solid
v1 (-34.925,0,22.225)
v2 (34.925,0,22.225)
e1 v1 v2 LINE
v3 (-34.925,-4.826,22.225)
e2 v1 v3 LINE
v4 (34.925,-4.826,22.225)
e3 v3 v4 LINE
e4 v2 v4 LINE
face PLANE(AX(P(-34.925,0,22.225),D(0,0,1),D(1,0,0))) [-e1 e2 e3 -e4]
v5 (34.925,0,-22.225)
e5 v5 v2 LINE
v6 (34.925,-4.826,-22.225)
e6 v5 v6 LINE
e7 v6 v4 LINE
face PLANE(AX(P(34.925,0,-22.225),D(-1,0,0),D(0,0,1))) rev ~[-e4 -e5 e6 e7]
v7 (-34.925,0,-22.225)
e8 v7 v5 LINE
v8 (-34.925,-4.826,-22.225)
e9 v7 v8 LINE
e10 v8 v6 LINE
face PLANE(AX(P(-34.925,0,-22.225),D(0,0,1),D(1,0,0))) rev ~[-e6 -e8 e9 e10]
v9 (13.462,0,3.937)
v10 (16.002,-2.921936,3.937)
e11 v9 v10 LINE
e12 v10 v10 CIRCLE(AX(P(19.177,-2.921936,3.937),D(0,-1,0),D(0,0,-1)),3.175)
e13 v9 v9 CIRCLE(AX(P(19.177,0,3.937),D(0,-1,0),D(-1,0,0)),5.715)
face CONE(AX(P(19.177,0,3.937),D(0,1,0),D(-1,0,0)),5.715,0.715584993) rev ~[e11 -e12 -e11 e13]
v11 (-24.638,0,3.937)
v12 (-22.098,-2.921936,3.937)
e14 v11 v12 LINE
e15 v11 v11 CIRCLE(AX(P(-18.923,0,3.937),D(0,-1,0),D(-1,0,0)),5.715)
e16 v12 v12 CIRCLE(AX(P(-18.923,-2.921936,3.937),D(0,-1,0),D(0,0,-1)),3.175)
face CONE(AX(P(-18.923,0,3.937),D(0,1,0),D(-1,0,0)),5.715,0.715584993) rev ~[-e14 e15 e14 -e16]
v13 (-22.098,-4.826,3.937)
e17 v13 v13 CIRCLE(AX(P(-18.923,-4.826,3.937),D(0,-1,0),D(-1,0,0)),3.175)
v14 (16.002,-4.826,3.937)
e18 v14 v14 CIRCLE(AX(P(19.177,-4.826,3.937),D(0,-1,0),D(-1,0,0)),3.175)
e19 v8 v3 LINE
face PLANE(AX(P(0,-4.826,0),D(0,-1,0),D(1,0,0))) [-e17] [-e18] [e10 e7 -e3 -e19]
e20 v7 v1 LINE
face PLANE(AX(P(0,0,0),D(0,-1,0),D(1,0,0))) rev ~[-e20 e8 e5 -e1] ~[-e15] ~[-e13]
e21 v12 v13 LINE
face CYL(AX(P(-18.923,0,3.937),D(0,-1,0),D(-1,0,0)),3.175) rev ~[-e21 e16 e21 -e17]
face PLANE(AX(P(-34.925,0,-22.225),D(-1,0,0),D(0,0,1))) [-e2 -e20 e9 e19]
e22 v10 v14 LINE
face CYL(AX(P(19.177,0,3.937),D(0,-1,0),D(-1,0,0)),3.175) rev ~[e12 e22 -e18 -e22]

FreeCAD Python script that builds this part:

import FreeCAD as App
import Part
import Sketcher
from FreeCAD import Vector
Q = App.Units.Quantity


def add_polygon(sketch, points):
    """Adds a closed chain of lines whose ends are joined by coincident constraints."""
    first, n = sketch.GeometryCount, len(points)
    for a, b in zip(points, points[1:] + points[:1]):
        sketch.addGeometry(Part.LineSegment(App.Vector(*a, 0), App.Vector(*b, 0)), False)
    for i in range(n):
        sketch.addConstraint(Sketcher.Constraint("Coincident", first + i, 2, first + (i + 1) % n, 1))

doc = App.newDocument("Part")
body = doc.addObject("PartDesign::Body", "Body")

# Sketch on XZ plane
sketch1 = body.newObject("Sketcher::SketchObject", "Sketch")
sketch1.AttachmentSupport = (doc.getObject("XZ_Plane"), [""])
sketch1.MapMode = "FlatFace"
add_polygon(sketch1, [(-35, 22), (-35, -22), (35, -22), (35, 22)])  # lines 0-3
sketch1.addConstraint([
    Sketcher.Constraint("Vertical", 0),
    Sketcher.Constraint("Horizontal", 1),
    Sketcher.Constraint("Vertical", 2),
    Sketcher.Constraint("Horizontal", 3),
    Sketcher.Constraint("Symmetric", 0, 2, 2, 2, -1, 1),
    Sketcher.Constraint("DistanceX", 1, 1, 1, 2, Q("2.75 in")),
    Sketcher.Constraint("DistanceY", 0, 2, 0, 1, Q("1.75 in")),
])
pad1 = body.newObject("PartDesign::Pad", "Pad")
pad1.Profile = sketch1
pad1.Length = Q("0.19 in")

# Sketch on XZ plane
sketch2 = body.newObject("Sketcher::SketchObject", "Sketch001")
sketch2.AttachmentSupport = (doc.getObject("XZ_Plane"), [""])
sketch2.MapMode = "FlatFace"
sketch2.addGeometry([
    Part.Circle(Vector(-18.9, 3.9, 0), Vector(0, 0, 1), 3.2),
    Part.Circle(Vector(19.2, 3.9, 0), Vector(0, 0, 1), 3.2),
], False)
sketch2.addConstraint([
    Sketcher.Constraint("Equal", 0, 1),
    Sketcher.Constraint("Horizontal", 0, 3, 1, 3),
    Sketcher.Constraint("Diameter", 0, Q("0.25 in")),
    Sketcher.Constraint("DistanceX", 0, 3, 1, 3, Q("1.5 in")),
    Sketcher.Constraint("DistanceX", 0, 3, -1, 1, Q("0.745 in")),
    Sketcher.Constraint("DistanceY", -1, 1, 0, 3, Q("0.155 in")),
])
doc.recompute()
hole = body.newObject("PartDesign::Hole", "Hole")
hole.Profile = sketch2
hole.ThreadType = "None"
hole.Diameter = Q("0.25 in")
hole.DepthType = "ThroughAll"
hole.HoleCutType = "Countersink"
hole.HoleCutDiameter = Q("0.45 in")
hole.HoleCutCountersinkAngle = 82
hole.Reversed = True

doc.recompute()
